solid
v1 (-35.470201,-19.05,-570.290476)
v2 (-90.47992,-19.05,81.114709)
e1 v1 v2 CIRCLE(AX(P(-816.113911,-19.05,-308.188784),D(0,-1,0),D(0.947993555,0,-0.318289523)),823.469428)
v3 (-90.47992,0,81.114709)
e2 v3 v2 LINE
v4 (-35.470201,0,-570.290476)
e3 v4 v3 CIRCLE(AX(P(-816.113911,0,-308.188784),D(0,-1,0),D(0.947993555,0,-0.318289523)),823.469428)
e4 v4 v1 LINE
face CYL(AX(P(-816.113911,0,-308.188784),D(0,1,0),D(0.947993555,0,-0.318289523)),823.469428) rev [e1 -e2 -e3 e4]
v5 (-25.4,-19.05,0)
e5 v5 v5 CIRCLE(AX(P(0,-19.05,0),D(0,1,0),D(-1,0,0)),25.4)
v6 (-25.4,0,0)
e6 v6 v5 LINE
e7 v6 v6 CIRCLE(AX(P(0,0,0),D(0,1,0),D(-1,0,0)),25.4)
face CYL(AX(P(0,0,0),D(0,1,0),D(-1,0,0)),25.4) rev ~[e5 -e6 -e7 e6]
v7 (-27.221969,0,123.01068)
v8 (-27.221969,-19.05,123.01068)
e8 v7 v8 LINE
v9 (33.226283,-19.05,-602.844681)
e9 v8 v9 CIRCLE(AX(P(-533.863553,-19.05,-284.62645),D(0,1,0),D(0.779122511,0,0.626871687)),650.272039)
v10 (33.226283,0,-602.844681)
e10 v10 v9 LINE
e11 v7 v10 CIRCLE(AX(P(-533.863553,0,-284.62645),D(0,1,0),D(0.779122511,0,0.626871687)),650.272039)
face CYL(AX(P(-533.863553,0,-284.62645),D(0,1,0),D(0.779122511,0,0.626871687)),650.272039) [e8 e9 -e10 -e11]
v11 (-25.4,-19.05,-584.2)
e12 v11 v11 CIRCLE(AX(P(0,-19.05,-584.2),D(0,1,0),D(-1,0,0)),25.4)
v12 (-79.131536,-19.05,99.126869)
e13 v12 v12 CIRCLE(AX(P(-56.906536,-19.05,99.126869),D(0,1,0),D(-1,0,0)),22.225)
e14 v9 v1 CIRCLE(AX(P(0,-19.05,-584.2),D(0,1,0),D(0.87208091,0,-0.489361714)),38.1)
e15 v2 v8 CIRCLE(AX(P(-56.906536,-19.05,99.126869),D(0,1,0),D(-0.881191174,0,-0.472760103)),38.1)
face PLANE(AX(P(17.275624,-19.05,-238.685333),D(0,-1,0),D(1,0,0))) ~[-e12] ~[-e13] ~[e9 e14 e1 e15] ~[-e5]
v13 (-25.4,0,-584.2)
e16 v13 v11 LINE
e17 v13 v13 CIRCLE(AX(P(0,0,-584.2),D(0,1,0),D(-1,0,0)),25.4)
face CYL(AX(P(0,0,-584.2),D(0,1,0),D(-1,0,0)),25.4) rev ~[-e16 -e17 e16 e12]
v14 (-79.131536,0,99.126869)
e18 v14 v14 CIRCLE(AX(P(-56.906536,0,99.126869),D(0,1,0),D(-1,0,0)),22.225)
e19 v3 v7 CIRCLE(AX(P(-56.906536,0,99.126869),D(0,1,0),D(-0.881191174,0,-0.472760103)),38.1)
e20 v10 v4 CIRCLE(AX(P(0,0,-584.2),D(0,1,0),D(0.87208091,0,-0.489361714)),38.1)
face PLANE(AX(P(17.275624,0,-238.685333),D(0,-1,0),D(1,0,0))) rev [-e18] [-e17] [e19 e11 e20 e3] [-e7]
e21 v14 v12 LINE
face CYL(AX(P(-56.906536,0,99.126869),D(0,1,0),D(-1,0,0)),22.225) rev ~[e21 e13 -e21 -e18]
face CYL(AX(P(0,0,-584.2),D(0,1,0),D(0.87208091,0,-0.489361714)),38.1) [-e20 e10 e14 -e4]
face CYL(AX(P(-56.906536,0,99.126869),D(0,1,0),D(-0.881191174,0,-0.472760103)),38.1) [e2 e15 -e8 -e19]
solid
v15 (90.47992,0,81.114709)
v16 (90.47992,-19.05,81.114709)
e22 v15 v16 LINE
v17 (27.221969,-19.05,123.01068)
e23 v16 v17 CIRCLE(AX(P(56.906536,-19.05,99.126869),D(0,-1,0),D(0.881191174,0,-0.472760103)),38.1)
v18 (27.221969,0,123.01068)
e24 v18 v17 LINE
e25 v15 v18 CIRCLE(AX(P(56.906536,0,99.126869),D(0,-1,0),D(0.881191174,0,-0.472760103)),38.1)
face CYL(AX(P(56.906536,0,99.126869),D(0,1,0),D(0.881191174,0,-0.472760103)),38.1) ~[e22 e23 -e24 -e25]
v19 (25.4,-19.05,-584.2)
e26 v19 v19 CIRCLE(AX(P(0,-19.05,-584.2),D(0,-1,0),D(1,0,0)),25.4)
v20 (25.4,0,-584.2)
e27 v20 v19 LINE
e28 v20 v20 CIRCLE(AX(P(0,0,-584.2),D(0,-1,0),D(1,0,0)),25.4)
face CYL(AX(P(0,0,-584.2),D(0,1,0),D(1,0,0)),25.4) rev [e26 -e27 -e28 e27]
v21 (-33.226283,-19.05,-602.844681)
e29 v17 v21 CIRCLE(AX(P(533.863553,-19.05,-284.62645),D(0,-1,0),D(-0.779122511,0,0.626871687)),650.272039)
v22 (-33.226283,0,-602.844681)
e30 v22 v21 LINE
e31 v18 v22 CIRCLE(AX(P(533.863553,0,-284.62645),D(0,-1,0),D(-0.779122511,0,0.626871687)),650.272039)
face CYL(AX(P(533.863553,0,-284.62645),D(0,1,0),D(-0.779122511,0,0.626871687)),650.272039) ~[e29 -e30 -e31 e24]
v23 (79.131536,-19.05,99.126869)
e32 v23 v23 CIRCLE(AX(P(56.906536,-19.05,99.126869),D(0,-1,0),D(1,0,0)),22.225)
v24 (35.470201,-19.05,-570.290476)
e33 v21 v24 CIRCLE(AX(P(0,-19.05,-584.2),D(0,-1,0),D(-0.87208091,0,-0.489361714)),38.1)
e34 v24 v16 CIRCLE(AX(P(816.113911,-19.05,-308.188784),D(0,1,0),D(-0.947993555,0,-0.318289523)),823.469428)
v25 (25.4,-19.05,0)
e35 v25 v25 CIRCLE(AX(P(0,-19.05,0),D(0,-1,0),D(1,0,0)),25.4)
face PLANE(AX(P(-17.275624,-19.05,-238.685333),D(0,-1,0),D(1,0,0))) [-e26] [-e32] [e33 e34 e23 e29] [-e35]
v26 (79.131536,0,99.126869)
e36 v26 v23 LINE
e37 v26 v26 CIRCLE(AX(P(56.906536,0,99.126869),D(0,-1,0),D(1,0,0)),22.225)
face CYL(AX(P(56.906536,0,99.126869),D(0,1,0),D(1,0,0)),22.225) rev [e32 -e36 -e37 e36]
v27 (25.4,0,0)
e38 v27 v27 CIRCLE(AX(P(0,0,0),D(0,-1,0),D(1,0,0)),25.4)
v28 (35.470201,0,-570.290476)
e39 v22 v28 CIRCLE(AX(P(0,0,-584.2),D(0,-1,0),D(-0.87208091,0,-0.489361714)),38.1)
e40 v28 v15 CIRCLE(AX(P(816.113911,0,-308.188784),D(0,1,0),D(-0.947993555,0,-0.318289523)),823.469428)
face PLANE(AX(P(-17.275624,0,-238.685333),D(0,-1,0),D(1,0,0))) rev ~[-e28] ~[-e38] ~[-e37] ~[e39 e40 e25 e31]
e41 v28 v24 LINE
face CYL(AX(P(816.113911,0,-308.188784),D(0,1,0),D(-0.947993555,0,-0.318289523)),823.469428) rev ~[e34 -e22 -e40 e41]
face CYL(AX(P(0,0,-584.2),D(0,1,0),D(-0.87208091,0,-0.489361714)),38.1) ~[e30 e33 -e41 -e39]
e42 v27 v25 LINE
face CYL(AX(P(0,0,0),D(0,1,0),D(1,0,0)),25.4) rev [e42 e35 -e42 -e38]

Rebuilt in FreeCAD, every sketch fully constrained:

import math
import FreeCAD as App
import Part
import Sketcher
Q = App.Units.Quantity

doc = App.newDocument("Part")
body = doc.addObject("PartDesign::Body", "Body")

sketch1 = body.newObject("Sketcher::SketchObject", "Sketch")
sketch1.AttachmentSupport = (doc.getObject("XZ_Plane"), [""])
sketch1.MapMode = "FlatFace"
sketch1.addGeometry([
    Part.ArcOfCircle(Part.Circle(App.Vector(534, -285, 0), App.Vector(0, 0, 1), 650), math.radians(141), math.radians(209)),
    Part.ArcOfCircle(Part.Circle(App.Vector(0, -584, 0), App.Vector(0, 0, 1), 38), math.radians(-151), math.radians(21)),
    Part.ArcOfCircle(Part.Circle(App.Vector(816, -308, 0), App.Vector(0, 0, 1), 823), math.radians(152), math.radians(199)),
    Part.ArcOfCircle(Part.Circle(App.Vector(57, 99, 0), App.Vector(0, 0, 1), 38), math.radians(-28), math.radians(141)),
    Part.Circle(App.Vector(0, -584, 0), App.Vector(0, 0, 1), 25),
    Part.Circle(App.Vector(0, 0, 0), App.Vector(0, 0, 1), 25),
    Part.Circle(App.Vector(57, 99, 0), App.Vector(0, 0, 1), 22),
], False)
sketch1.addConstraint([
    Sketcher.Constraint("Tangent", 0, 2, 1, 1),
    Sketcher.Constraint("Coincident", 1, 2, 2, 2),
    Sketcher.Constraint("Tangent", 2, 1, 3, 1),
    Sketcher.Constraint("Tangent", 3, 2, 0, 1),
    Sketcher.Constraint("Coincident", 5, 3, -1, 1),
    Sketcher.Constraint("Coincident", 4, 3, 1, 3),
    Sketcher.Constraint("Coincident", 6, 3, 3, 3),
    Sketcher.Constraint("Equal", 1, 3),
    Sketcher.Constraint("Equal", 4, 5),
    Sketcher.Constraint("PointOnObject", 1, 3, -2),
    Sketcher.Constraint("Diameter", 4, Q("2 in")),
    Sketcher.Constraint("Radius", 1, Q("1.5 in")),
    Sketcher.Constraint("Diameter", 6, Q("1.75 in")),
    Sketcher.Constraint("DistanceY", 1, 3, -1, 1, Q("23 in")),
    Sketcher.Constraint("Radius", 0, 650.272039),
    Sketcher.Constraint("Radius", 2, 823.469428),
    Sketcher.Constraint("DistanceX", -1, 1, 1, 2, 35.470201),
    Sketcher.Constraint("DistanceY", 0, 3, -1, 1, 284.62645),
    Sketcher.Constraint("DistanceX", -1, 1, 2, 3, 816.113911),
])
pad1 = body.newObject("PartDesign::Pad", "Pad")
pad1.Profile = sketch1
pad1.Length = Q("0.75 in")
body2 = doc.addObject("PartDesign::Body", "Body001")
doc.recompute()

mirroring = doc.addObject("Part::Mirroring", "Mirroring")
mirroring.Source = body
mirroring.Base = App.Vector(0, 0, 0)
mirroring.Normal = App.Vector(1, 0, 0)
body2.BaseFeature = mirroring
doc.recompute()
mirroring.Visibility = False

doc.recompute()
